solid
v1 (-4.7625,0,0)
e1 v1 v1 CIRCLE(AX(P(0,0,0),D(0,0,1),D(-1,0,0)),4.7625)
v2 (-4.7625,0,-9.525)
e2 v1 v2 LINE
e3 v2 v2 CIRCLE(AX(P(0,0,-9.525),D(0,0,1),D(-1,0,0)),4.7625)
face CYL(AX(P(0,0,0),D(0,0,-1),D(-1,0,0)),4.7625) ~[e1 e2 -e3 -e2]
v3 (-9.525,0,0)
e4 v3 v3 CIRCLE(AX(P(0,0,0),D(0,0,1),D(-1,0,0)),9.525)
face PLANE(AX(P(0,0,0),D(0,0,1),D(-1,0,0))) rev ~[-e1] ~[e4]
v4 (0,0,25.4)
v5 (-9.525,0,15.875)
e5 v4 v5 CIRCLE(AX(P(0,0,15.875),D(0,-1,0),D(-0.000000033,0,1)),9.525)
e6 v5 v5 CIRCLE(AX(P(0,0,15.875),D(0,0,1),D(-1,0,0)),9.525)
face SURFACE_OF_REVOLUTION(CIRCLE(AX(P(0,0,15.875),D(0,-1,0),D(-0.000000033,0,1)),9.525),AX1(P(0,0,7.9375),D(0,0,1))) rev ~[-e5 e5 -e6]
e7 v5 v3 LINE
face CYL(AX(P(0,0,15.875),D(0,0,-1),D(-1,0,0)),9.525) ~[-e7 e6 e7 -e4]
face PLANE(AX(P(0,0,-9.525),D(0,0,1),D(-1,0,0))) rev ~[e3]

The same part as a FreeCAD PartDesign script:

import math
import FreeCAD as App
import Part
import Sketcher
from FreeCAD import Vector
Q = App.Units.Quantity

doc = App.newDocument("Part")
body = doc.addObject("PartDesign::Body", "Body")

# Sketch on XZ plane
sketch1 = body.newObject("Sketcher::SketchObject", "Sketch")
sketch1.AttachmentSupport = (doc.getObject("XZ_Plane"), [""])
sketch1.MapMode = "FlatFace"
sketch1.addGeometry([
    Part.LineSegment(Vector(0, -9.525, 0), Vector(0, 25.4, 0)),  # 0
    Part.ArcOfCircle(Part.Circle(Vector(0, 15.875, 0), Vector(0, 0, 1), 9.525), math.radians(90.000002), math.radians(179.999998)),  # 1
    Part.LineSegment(Vector(-9.525, 15.875, 0), Vector(-9.525, 0, 0)),  # 2
    Part.LineSegment(Vector(-9.525, 0, 0), Vector(-4.7625, 0, 0)),  # 3
    Part.LineSegment(Vector(-4.7625, 0, 0), Vector(-4.7625, -9.525, 0)),  # 4
    Part.LineSegment(Vector(-4.7625, -9.525, 0), Vector(0, -9.525, 0)),  # 5
], False)
sketch1.addConstraint([
    Sketcher.Constraint("Coincident", 0, 2, 1, 1),
    Sketcher.Constraint("Tangent", 1, 2, 2, 1),
    Sketcher.Constraint("Coincident", 2, 2, 3, 1),
    Sketcher.Constraint("Coincident", 3, 2, 4, 1),
    Sketcher.Constraint("Coincident", 4, 2, 5, 1),
    Sketcher.Constraint("Coincident", 5, 2, 0, 1),
    Sketcher.Constraint("Vertical", 0),
    Sketcher.Constraint("Vertical", 2),
    Sketcher.Constraint("Horizontal", 3),
    Sketcher.Constraint("Vertical", 4),
    Sketcher.Constraint("Horizontal", 5),
    Sketcher.Constraint("PointOnObject", 1, 3, -2),
    Sketcher.Constraint("PointOnObject", 0, 2, -2),
    Sketcher.Constraint("PointOnObject", 2, 2, -1),
    Sketcher.Constraint("Equal", 3, 5),
    Sketcher.Constraint("DistanceY", -1, 1, 0, 2, Q("1 in")),
    Sketcher.Constraint("Radius", 1, Q("0.375 in")),
    Sketcher.Constraint("DistanceY", 4, 2, 1, 3, Q("1 in")),
])
revolution = body.newObject("PartDesign::Revolution", "Revolution")
revolution.Profile = sketch1
revolution.ReferenceAxis = (sketch1, ["V_Axis"])
revolution.Angle = 360

doc.recompute()
